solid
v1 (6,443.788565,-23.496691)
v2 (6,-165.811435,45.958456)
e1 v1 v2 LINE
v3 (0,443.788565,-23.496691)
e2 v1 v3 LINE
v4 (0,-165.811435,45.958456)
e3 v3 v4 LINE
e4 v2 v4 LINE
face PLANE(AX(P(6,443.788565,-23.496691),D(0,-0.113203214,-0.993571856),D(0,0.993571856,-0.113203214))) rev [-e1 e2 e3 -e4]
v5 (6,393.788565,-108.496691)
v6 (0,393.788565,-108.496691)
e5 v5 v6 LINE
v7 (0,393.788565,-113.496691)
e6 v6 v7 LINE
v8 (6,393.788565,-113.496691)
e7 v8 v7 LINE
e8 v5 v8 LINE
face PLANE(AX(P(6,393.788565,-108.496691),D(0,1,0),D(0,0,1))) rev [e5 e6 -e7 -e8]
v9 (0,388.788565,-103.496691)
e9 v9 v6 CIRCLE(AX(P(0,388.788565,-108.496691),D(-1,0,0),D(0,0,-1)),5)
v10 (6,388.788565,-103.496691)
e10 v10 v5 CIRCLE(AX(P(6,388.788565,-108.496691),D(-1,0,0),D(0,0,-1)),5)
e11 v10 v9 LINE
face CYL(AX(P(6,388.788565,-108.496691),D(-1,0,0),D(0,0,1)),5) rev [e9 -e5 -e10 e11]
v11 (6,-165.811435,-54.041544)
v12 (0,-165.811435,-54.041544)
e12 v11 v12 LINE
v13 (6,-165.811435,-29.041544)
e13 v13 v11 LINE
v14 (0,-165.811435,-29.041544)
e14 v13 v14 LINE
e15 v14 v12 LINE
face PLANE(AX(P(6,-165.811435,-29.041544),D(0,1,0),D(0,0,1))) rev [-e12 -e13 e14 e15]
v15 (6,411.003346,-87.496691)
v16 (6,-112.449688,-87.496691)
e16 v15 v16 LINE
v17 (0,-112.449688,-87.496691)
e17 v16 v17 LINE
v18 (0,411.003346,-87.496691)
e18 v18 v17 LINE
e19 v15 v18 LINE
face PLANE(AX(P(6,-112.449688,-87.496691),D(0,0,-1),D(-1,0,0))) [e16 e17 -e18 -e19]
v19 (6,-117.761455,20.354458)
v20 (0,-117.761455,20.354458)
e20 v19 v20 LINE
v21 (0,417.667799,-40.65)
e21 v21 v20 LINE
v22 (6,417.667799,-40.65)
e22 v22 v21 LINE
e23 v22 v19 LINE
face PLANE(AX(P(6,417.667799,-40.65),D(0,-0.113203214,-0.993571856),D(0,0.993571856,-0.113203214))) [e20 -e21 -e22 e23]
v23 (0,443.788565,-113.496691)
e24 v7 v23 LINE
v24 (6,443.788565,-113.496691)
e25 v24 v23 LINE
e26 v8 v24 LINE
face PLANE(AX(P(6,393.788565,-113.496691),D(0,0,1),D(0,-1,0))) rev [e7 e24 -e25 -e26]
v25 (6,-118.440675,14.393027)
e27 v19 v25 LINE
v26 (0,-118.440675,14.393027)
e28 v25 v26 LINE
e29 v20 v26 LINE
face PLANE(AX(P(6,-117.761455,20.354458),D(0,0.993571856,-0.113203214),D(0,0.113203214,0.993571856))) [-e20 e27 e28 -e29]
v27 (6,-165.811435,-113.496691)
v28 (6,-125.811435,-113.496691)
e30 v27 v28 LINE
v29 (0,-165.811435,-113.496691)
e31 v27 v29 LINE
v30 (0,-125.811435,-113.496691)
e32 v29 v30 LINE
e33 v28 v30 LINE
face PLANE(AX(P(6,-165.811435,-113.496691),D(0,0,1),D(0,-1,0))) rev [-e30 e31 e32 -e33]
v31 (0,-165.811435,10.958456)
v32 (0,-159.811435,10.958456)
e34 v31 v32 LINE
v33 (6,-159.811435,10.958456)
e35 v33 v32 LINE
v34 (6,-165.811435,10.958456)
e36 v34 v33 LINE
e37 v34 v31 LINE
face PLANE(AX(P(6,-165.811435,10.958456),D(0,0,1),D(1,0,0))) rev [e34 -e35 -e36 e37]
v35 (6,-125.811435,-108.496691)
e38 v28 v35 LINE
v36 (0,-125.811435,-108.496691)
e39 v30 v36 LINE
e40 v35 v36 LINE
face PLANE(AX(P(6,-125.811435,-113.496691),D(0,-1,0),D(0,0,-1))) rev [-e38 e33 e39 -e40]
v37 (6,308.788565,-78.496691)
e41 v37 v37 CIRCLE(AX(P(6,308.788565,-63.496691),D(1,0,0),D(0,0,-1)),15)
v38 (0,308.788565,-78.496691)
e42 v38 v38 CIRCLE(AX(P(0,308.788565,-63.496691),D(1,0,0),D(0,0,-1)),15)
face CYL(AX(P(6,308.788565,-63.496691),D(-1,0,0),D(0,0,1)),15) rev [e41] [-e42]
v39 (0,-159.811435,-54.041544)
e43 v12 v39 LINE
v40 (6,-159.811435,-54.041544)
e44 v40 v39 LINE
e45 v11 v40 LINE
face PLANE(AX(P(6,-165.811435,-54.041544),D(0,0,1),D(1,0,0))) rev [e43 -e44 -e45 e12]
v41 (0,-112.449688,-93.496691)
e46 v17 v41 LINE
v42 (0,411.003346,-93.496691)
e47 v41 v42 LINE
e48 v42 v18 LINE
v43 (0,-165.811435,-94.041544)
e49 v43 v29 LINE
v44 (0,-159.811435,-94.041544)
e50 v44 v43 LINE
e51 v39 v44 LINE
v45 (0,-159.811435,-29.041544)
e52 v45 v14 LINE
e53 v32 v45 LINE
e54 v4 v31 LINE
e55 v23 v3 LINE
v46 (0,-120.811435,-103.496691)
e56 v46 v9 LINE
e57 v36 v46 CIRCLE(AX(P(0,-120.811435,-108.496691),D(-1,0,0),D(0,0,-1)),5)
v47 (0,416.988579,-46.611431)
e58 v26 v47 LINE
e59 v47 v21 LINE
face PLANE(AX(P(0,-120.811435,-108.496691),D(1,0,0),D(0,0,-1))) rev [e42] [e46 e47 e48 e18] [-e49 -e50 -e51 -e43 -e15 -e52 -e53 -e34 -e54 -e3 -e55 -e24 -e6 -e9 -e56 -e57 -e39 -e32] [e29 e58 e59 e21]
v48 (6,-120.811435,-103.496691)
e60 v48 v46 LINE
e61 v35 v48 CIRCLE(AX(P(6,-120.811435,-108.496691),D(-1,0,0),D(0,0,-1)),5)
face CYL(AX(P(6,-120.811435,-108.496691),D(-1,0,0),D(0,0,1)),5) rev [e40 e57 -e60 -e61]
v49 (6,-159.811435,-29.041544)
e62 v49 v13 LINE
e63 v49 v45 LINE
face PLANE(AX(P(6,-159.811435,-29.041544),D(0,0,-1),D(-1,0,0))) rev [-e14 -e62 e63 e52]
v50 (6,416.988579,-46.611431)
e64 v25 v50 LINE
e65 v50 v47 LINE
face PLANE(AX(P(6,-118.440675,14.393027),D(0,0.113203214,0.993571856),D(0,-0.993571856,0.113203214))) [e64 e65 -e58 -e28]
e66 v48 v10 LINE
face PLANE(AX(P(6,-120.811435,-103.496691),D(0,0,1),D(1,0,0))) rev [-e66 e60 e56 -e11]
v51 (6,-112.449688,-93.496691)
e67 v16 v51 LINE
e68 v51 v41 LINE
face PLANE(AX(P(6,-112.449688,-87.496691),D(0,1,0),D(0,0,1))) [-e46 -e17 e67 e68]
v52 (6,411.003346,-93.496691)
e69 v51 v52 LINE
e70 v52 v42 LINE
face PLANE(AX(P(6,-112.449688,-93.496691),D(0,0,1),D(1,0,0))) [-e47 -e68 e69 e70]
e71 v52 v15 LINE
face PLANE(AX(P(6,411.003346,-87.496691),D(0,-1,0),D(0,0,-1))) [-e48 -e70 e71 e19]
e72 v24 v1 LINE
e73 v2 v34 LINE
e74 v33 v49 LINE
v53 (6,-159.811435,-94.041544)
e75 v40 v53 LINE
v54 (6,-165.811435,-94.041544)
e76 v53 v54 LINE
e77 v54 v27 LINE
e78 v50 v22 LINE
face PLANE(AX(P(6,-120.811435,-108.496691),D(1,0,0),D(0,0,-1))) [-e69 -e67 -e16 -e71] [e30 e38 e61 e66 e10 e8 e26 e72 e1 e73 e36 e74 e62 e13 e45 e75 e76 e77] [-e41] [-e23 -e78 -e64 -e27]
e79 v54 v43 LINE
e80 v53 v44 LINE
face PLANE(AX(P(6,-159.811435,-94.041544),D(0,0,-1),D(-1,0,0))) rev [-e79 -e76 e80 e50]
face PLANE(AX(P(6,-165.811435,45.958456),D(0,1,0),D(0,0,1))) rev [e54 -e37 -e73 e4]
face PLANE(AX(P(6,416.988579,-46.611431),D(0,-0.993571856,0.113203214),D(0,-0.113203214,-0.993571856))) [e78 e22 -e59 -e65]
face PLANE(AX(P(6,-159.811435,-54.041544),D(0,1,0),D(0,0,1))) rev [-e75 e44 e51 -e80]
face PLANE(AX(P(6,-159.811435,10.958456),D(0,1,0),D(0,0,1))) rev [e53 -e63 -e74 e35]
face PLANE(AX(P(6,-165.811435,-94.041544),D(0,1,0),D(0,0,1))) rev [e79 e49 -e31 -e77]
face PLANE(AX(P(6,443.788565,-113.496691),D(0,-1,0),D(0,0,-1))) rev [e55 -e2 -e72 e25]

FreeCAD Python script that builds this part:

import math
import FreeCAD as App
import Part
import Sketcher
Q = App.Units.Quantity

doc = App.newDocument("Part")
body = doc.addObject("PartDesign::Body", "Body")

# Sketch on YZ plane
sketch1 = doc.addObject("Sketcher::SketchObject", "Sketch")
body.addObject(sketch1)
sketch1.AttachmentSupport = (doc.YZ_Plane, [""])
sketch1.MapMode = "FlatFace"
sketch1.addGeometry(Part.LineSegment(App.Vector(-166, 46, 0), App.Vector(-166, 11, 0)), False)
sketch1.addGeometry(Part.LineSegment(App.Vector(-166, 11, 0), App.Vector(-160, 11, 0)), False)
sketch1.addGeometry(Part.LineSegment(App.Vector(-160, 11, 0), App.Vector(-160, -29, 0)), False)
sketch1.addGeometry(Part.LineSegment(App.Vector(-160, -29, 0), App.Vector(-166, -29, 0)), False)
sketch1.addGeometry(Part.LineSegment(App.Vector(-166, -29, 0), App.Vector(-166, -54, 0)), False)
sketch1.addGeometry(Part.LineSegment(App.Vector(-166, -54, 0), App.Vector(-160, -54, 0)), False)
sketch1.addGeometry(Part.LineSegment(App.Vector(-160, -54, 0), App.Vector(-160, -94, 0)), False)
sketch1.addGeometry(Part.LineSegment(App.Vector(-160, -94, 0), App.Vector(-166, -94, 0)), False)
sketch1.addGeometry(Part.LineSegment(App.Vector(-166, -94, 0), App.Vector(-166, -113, 0)), False)
sketch1.addGeometry(Part.LineSegment(App.Vector(-166, -113, 0), App.Vector(-126, -113, 0)), False)
sketch1.addGeometry(Part.LineSegment(App.Vector(-126, -113, 0), App.Vector(-126, -108, 0)), False)
sketch1.addGeometry(Part.ArcOfCircle(Part.Circle(App.Vector(-121, -108, 0), App.Vector(0, 0, 1), 5), math.radians(90), math.radians(180)), False)
sketch1.addGeometry(Part.LineSegment(App.Vector(-121, -103, 0), App.Vector(389, -103, 0)), False)
sketch1.addGeometry(Part.ArcOfCircle(Part.Circle(App.Vector(389, -108, 0), App.Vector(0, 0, 1), 5), math.radians(0), math.radians(90)), False)
sketch1.addGeometry(Part.LineSegment(App.Vector(394, -108, 0), App.Vector(394, -113, 0)), False)
sketch1.addGeometry(Part.LineSegment(App.Vector(394, -113, 0), App.Vector(444, -113, 0)), False)
sketch1.addGeometry(Part.LineSegment(App.Vector(444, -113, 0), App.Vector(444, -23, 0)), False)
sketch1.addGeometry(Part.LineSegment(App.Vector(444, -23, 0), App.Vector(-166, 46, 0)), False)
sketch1.addGeometry(Part.LineSegment(App.Vector(411, -93, 0), App.Vector(-112, -93, 0)), False)
sketch1.addGeometry(Part.LineSegment(App.Vector(-112, -93, 0), App.Vector(-112, -87, 0)), False)
sketch1.addGeometry(Part.LineSegment(App.Vector(-112, -87, 0), App.Vector(411, -87, 0)), False)
sketch1.addGeometry(Part.LineSegment(App.Vector(411, -87, 0), App.Vector(411, -93, 0)), False)
sketch1.addGeometry(Part.Circle(App.Vector(309, -63, 0), App.Vector(0, 0, 1), 15), False)
sketch1.addGeometry(Part.LineSegment(App.Vector(-118, 14, 0), App.Vector(-118, 20, 0)), False)
sketch1.addGeometry(Part.LineSegment(App.Vector(-118, 20, 0), App.Vector(418, -41, 0)), False)
sketch1.addGeometry(Part.LineSegment(App.Vector(418, -41, 0), App.Vector(417, -47, 0)), False)
sketch1.addGeometry(Part.LineSegment(App.Vector(417, -47, 0), App.Vector(-118, 14, 0)), False)
sketch1.addConstraint(Sketcher.Constraint("Coincident", 0, 2, 1, 1))
sketch1.addConstraint(Sketcher.Constraint("Coincident", 1, 2, 2, 1))
sketch1.addConstraint(Sketcher.Constraint("Coincident", 2, 2, 3, 1))
sketch1.addConstraint(Sketcher.Constraint("Coincident", 3, 2, 4, 1))
sketch1.addConstraint(Sketcher.Constraint("Coincident", 4, 2, 5, 1))
sketch1.addConstraint(Sketcher.Constraint("Coincident", 5, 2, 6, 1))
sketch1.addConstraint(Sketcher.Constraint("Coincident", 6, 2, 7, 1))
sketch1.addConstraint(Sketcher.Constraint("Coincident", 7, 2, 8, 1))
sketch1.addConstraint(Sketcher.Constraint("Coincident", 8, 2, 9, 1))
sketch1.addConstraint(Sketcher.Constraint("Coincident", 9, 2, 10, 1))
sketch1.addConstraint(Sketcher.Constraint("Tangent", 10, 2, 11, 2))
sketch1.addConstraint(Sketcher.Constraint("Tangent", 11, 1, 12, 1))
sketch1.addConstraint(Sketcher.Constraint("Tangent", 12, 2, 13, 2))
sketch1.addConstraint(Sketcher.Constraint("Tangent", 13, 1, 14, 1))
sketch1.addConstraint(Sketcher.Constraint("Coincident", 14, 2, 15, 1))
sketch1.addConstraint(Sketcher.Constraint("Coincident", 15, 2, 16, 1))
sketch1.addConstraint(Sketcher.Constraint("Coincident", 16, 2, 17, 1))
sketch1.addConstraint(Sketcher.Constraint("Coincident", 17, 2, 0, 1))
sketch1.addConstraint(Sketcher.Constraint("Coincident", 18, 2, 19, 1))
sketch1.addConstraint(Sketcher.Constraint("Coincident", 19, 2, 20, 1))
sketch1.addConstraint(Sketcher.Constraint("Coincident", 20, 2, 21, 1))
sketch1.addConstraint(Sketcher.Constraint("Coincident", 21, 2, 18, 1))
sketch1.addConstraint(Sketcher.Constraint("Coincident", 23, 2, 24, 1))
sketch1.addConstraint(Sketcher.Constraint("Coincident", 24, 2, 25, 1))
sketch1.addConstraint(Sketcher.Constraint("Coincident", 25, 2, 26, 1))
sketch1.addConstraint(Sketcher.Constraint("Coincident", 26, 2, 23, 1))
sketch1.addConstraint(Sketcher.Constraint("Vertical", 0))
sketch1.addConstraint(Sketcher.Constraint("Horizontal", 1))
sketch1.addConstraint(Sketcher.Constraint("Vertical", 2))
sketch1.addConstraint(Sketcher.Constraint("Horizontal", 3))
sketch1.addConstraint(Sketcher.Constraint("Vertical", 4))
sketch1.addConstraint(Sketcher.Constraint("Horizontal", 5))
sketch1.addConstraint(Sketcher.Constraint("Vertical", 6))
sketch1.addConstraint(Sketcher.Constraint("Horizontal", 7))
sketch1.addConstraint(Sketcher.Constraint("Vertical", 8))
sketch1.addConstraint(Sketcher.Constraint("Horizontal", 9))
sketch1.addConstraint(Sketcher.Constraint("Vertical", 10))
sketch1.addConstraint(Sketcher.Constraint("Horizontal", 12))
sketch1.addConstraint(Sketcher.Constraint("Vertical", 14))
sketch1.addConstraint(Sketcher.Constraint("Horizontal", 15))
sketch1.addConstraint(Sketcher.Constraint("Vertical", 16))
sketch1.addConstraint(Sketcher.Constraint("Horizontal", 18))
sketch1.addConstraint(Sketcher.Constraint("Vertical", 19))
sketch1.addConstraint(Sketcher.Constraint("Horizontal", 20))
sketch1.addConstraint(Sketcher.Constraint("Vertical", 21))
sketch1.addConstraint(Sketcher.Constraint("Equal", 11, 13))
sketch1.addConstraint(Sketcher.Constraint("Perpendicular", 17, 23))
sketch1.addConstraint(Sketcher.Constraint("Perpendicular", 23, 24))
sketch1.addConstraint(Sketcher.Constraint("Perpendicular", 24, 25))
sketch1.addConstraint(Sketcher.Constraint("Perpendicular", 25, 26))
sketch1.addConstraint(Sketcher.Constraint("Horizontal", 9, 2, 14, 2))
sketch1.addConstraint(Sketcher.Constraint("Vertical", 0, 2, 3, 2))
sketch1.addConstraint(Sketcher.Constraint("Vertical", 2, 2, 5, 2))
sketch1.addConstraint(Sketcher.Constraint("Vertical", 4, 2, 7, 2))
sketch1.addConstraint(Sketcher.Constraint("Equal", 9, 2))
sketch1.addConstraint(Sketcher.Constraint("Equal", 2, 6))
sketch1.addConstraint(Sketcher.Constraint("Equal", 7, 19))
sketch1.addConstraint(Sketcher.Constraint("Diameter", 22, Q("30 mm")))
sketch1.addConstraint(Sketcher.Constraint("Radius", 11, Q("5 mm")))
sketch1.addConstraint(Sketcher.Constraint("DistanceX", 1, 1, 1, 2, Q("6 mm")))
sketch1.addConstraint(Sketcher.Constraint("DistanceX", 9, 1, 9, 2, Q("40 mm")))
sketch1.addConstraint(Sketcher.Constraint("DistanceX", 15, 1, 15, 2, Q("50 mm")))
sketch1.addConstraint(Sketcher.Constraint("DistanceY", 0, 2, 0, 1, Q("35 mm")))
sketch1.addConstraint(Sketcher.Constraint("DistanceY", 4, 2, 4, 1, Q("25 mm")))
sketch1.addConstraint(Sketcher.Constraint("DistanceY", 10, 1, 10, 2, Q("5 mm")))
sketch1.addConstraint(Sketcher.Constraint("DistanceY", 16, 1, 16, 2, Q("90 mm")))
sketch1.addConstraint(Sketcher.Constraint("Distance", 23, Q("6 mm")))
sketch1.addConstraint(Sketcher.Constraint("DistanceX", 12, 1, 12, 2, Q("509.6 mm")))
sketch1.addConstraint(Sketcher.Constraint("Angle", 17, Q("173.5 deg")))
sketch1.addConstraint(Sketcher.Constraint("DistanceX", 22, 3, 13, 3, Q("80 mm")))
sketch1.addConstraint(Sketcher.Constraint("DistanceY", 13, 3, 22, 3, Q("45 mm")))
sketch1.addConstraint(Sketcher.Constraint("DistanceY", 11, 1, 18, 2, Q("10 mm")))
sketch1.addConstraint(Sketcher.Constraint("DistanceY", 24, 2, -1, 1, Q("40.65 mm")))
sketch1.addConstraint(Sketcher.Constraint("DistanceY", 1, 2, 23, 2, Q("9.396002 mm")))
sketch1.addConstraint(Sketcher.Constraint("DistanceX", -1, 1, 24, 2, Q("417.667799 mm")))
sketch1.addConstraint(Sketcher.Constraint("Distance", 24, Q("538.893338 mm")))
sketch1.addConstraint(Sketcher.Constraint("DistanceX", 18, 2, 18, 1, Q("523.453035 mm")))
sketch1.addConstraint(Sketcher.Constraint("DistanceX", 18, 2, -1, 1, Q("112.449688 mm")))
sketch1.addConstraint(Sketcher.Constraint("DistanceX", 13, 1, 20, 2, Q("17.214782 mm")))
pad1 = doc.addObject("PartDesign::Pad", "Pad")
body.addObject(pad1)
pad1.Profile = sketch1
pad1.Length = 6

doc.recompute()
